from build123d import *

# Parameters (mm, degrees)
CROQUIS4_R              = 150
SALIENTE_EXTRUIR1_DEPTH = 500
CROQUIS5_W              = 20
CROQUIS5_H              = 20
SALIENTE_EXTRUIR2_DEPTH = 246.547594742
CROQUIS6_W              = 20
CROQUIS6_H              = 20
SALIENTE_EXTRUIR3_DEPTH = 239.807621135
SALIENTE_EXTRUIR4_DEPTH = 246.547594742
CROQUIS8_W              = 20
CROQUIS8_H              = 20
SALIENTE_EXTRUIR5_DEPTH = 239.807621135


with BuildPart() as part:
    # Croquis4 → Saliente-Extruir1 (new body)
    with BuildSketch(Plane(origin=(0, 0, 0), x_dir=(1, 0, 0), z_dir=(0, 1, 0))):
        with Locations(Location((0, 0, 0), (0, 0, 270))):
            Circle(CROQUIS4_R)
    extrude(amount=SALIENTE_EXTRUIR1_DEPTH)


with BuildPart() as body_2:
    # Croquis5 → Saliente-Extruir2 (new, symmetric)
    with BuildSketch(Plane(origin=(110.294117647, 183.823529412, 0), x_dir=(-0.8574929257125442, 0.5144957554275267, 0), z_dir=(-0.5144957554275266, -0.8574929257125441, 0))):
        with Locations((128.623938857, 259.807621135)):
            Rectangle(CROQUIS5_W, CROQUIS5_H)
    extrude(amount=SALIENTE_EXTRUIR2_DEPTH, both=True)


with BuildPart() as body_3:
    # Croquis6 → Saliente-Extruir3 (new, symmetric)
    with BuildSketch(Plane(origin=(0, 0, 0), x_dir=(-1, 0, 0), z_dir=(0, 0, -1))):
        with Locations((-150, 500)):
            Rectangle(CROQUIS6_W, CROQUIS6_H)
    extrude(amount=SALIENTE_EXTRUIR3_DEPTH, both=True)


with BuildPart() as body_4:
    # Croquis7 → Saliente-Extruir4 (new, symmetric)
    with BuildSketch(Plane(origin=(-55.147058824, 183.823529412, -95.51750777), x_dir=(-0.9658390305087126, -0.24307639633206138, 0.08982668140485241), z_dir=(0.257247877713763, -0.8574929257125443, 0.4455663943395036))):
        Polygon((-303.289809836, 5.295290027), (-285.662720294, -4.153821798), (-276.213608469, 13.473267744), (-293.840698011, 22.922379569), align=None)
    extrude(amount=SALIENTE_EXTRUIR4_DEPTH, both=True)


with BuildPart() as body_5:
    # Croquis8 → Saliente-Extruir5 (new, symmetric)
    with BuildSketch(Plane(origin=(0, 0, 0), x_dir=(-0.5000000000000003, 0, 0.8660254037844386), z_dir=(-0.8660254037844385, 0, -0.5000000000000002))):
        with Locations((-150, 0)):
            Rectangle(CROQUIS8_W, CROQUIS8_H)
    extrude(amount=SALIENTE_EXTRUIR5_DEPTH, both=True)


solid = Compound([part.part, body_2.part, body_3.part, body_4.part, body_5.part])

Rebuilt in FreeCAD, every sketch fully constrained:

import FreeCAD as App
import Part
import Sketcher

V = App.Vector
Q = App.Units.Quantity


def add_polygon(sketch, points):
    """Adds a closed chain of lines whose ends are joined by coincident constraints."""
    first, n = sketch.GeometryCount, len(points)
    for a, b in zip(points, points[1:] + points[:1]):
        sketch.addGeometry(Part.LineSegment(App.Vector(*a, 0), App.Vector(*b, 0)), False)
    for i in range(n):
        sketch.addConstraint(Sketcher.Constraint("Coincident", first + i, 2, first + (i + 1) % n, 1))

doc = App.newDocument("Part")
body = doc.addObject("PartDesign::Body", "Body")

sketch1 = doc.addObject("Sketcher::SketchObject", "Sketch")
body.addObject(sketch1)
sketch1.AttachmentSupport = (doc.XZ_Plane, [""])
sketch1.MapMode = "FlatFace"
sketch1.addGeometry(Part.Circle(V(0, 0, 0), V(0, 0, 1), 150), False)
sketch1.addConstraint([
    Sketcher.Constraint("Coincident", 0, 3, -1, 1),
    Sketcher.Constraint("Diameter", 0, Q("300 mm")),
])
pad1 = doc.addObject("PartDesign::Pad", "Pad")
body.addObject(pad1)
pad1.Profile = sketch1
pad1.Length = 500
pad1.Reversed = True
body2 = doc.addObject("PartDesign::Body", "Body001")

sketch2 = doc.addObject("Sketcher::SketchObject", "Sketch001")
body2.addObject(sketch2)
sketch2.Placement = App.Placement(V(110.294118, 183.823529, 0), App.Rotation(V(-0.857492926, 0.514495755, 0), V(0, 0, -1), V(-0.514495755, -0.857492926, 0), "ZXY"))
add_polygon(sketch2, [(119, 270), (119, 250), (139, 250), (139, 270)])
sketch2.addConstraint([
    Sketcher.Constraint("Vertical", 0),
    Sketcher.Constraint("Horizontal", 1),
    Sketcher.Constraint("Vertical", 2),
    Sketcher.Constraint("Horizontal", 3),
    Sketcher.Constraint("Equal", 3, 0),
    Sketcher.Constraint("DistanceX", 1, 1, 1, 2, Q("20 mm")),
    Sketcher.Constraint("DistanceX", -1, 1, 0, 2, Q("118.623939 mm")),
    Sketcher.Constraint("DistanceY", -1, 1, 0, 2, Q("249.807621 mm")),
])
pad2 = doc.addObject("PartDesign::Pad", "Pad001")
body2.addObject(pad2)
pad2.Profile = sketch2
pad2.Length = 493.095189
pad2.Midplane = True
body3 = doc.addObject("PartDesign::Body", "Body002")

sketch3 = doc.addObject("Sketcher::SketchObject", "Sketch002")
body3.addObject(sketch3)
sketch3.AttachmentSupport = (doc.getObject("XY_Plane002"), [""])
sketch3.MapMode = "FlatFace"
add_polygon(sketch3, [(160, 510), (160, 490), (140, 490), (140, 510)])
sketch3.addConstraint([
    Sketcher.Constraint("Vertical", 0),
    Sketcher.Constraint("Horizontal", 1),
    Sketcher.Constraint("Vertical", 2),
    Sketcher.Constraint("Horizontal", 3),
    Sketcher.Constraint("Equal", 3, 0),
    Sketcher.Constraint("DistanceX", 1, 2, 1, 1, Q("20 mm")),
    Sketcher.Constraint("DistanceX", -1, 1, 0, 2, Q("160 mm")),
    Sketcher.Constraint("DistanceY", -1, 1, 0, 2, Q("490 mm")),
])
pad3 = doc.addObject("PartDesign::Pad", "Pad002")
body3.addObject(pad3)
pad3.Profile = sketch3
pad3.Length = 479.615242
pad3.Midplane = True
body4 = doc.addObject("PartDesign::Body", "Body003")

sketch4 = doc.addObject("Sketcher::SketchObject", "Sketch003")
body4.addObject(sketch4)
sketch4.Placement = App.Placement(V(-55.147059, 183.823529, -95.517508), App.Rotation(V(-0.965839031, -0.243076396, 0.089826681), V(0.03128093, -0.453453137, -0.890731024), V(0.257247878, -0.857492926, 0.445566394), "ZXY"))
add_polygon(sketch4, [(-303, 5), (-286, -4), (-276, 13), (-294, 23)])
sketch4.addConstraint([
    Sketcher.Constraint("Perpendicular", 0, 1),
    Sketcher.Constraint("Perpendicular", 1, 2),
    Sketcher.Constraint("Perpendicular", 2, 3),
    Sketcher.Constraint("Equal", 0, 1),
    Sketcher.Constraint("Distance", 0, Q("20 mm")),
    Sketcher.Constraint("DistanceX", 2, 2, -1, 1, Q("293.840698 mm")),
    Sketcher.Constraint("DistanceY", 0, 2, 2, 2, Q("27.076201 mm")),
    Sketcher.Constraint("DistanceY", 0, 2, -1, 1, Q("4.153822 mm")),
])
pad4 = doc.addObject("PartDesign::Pad", "Pad003")
body4.addObject(pad4)
pad4.Profile = sketch4
pad4.Length = 493.095189
pad4.Midplane = True
body5 = doc.addObject("PartDesign::Body", "Body004")

sketch5 = doc.addObject("Sketcher::SketchObject", "Sketch004")
body5.addObject(sketch5)
sketch5.Placement = App.Placement(V(0, 0, 0), App.Rotation(V(-0.5, 0, 0.866025404), V(0, 1, 0), V(-0.866025404, 0, -0.5), "ZXY"))
add_polygon(sketch5, [(-160, 10), (-160, -10), (-140, -10), (-140, 10)])
sketch5.addConstraint([
    Sketcher.Constraint("Vertical", 0),
    Sketcher.Constraint("Horizontal", 1),
    Sketcher.Constraint("Vertical", 2),
    Sketcher.Constraint("Horizontal", 3),
    Sketcher.Constraint("Equal", 3, 0),
    Sketcher.Constraint("DistanceX", 1, 1, 1, 2, Q("20 mm")),
    Sketcher.Constraint("DistanceX", 0, 2, -1, 1, Q("160 mm")),
    Sketcher.Constraint("DistanceY", 0, 2, -1, 1, Q("10 mm")),
])
pad5 = doc.addObject("PartDesign::Pad", "Pad004")
body5.addObject(pad5)
pad5.Profile = sketch5
pad5.Length = 479.615242
pad5.Midplane = True

doc.recompute()
